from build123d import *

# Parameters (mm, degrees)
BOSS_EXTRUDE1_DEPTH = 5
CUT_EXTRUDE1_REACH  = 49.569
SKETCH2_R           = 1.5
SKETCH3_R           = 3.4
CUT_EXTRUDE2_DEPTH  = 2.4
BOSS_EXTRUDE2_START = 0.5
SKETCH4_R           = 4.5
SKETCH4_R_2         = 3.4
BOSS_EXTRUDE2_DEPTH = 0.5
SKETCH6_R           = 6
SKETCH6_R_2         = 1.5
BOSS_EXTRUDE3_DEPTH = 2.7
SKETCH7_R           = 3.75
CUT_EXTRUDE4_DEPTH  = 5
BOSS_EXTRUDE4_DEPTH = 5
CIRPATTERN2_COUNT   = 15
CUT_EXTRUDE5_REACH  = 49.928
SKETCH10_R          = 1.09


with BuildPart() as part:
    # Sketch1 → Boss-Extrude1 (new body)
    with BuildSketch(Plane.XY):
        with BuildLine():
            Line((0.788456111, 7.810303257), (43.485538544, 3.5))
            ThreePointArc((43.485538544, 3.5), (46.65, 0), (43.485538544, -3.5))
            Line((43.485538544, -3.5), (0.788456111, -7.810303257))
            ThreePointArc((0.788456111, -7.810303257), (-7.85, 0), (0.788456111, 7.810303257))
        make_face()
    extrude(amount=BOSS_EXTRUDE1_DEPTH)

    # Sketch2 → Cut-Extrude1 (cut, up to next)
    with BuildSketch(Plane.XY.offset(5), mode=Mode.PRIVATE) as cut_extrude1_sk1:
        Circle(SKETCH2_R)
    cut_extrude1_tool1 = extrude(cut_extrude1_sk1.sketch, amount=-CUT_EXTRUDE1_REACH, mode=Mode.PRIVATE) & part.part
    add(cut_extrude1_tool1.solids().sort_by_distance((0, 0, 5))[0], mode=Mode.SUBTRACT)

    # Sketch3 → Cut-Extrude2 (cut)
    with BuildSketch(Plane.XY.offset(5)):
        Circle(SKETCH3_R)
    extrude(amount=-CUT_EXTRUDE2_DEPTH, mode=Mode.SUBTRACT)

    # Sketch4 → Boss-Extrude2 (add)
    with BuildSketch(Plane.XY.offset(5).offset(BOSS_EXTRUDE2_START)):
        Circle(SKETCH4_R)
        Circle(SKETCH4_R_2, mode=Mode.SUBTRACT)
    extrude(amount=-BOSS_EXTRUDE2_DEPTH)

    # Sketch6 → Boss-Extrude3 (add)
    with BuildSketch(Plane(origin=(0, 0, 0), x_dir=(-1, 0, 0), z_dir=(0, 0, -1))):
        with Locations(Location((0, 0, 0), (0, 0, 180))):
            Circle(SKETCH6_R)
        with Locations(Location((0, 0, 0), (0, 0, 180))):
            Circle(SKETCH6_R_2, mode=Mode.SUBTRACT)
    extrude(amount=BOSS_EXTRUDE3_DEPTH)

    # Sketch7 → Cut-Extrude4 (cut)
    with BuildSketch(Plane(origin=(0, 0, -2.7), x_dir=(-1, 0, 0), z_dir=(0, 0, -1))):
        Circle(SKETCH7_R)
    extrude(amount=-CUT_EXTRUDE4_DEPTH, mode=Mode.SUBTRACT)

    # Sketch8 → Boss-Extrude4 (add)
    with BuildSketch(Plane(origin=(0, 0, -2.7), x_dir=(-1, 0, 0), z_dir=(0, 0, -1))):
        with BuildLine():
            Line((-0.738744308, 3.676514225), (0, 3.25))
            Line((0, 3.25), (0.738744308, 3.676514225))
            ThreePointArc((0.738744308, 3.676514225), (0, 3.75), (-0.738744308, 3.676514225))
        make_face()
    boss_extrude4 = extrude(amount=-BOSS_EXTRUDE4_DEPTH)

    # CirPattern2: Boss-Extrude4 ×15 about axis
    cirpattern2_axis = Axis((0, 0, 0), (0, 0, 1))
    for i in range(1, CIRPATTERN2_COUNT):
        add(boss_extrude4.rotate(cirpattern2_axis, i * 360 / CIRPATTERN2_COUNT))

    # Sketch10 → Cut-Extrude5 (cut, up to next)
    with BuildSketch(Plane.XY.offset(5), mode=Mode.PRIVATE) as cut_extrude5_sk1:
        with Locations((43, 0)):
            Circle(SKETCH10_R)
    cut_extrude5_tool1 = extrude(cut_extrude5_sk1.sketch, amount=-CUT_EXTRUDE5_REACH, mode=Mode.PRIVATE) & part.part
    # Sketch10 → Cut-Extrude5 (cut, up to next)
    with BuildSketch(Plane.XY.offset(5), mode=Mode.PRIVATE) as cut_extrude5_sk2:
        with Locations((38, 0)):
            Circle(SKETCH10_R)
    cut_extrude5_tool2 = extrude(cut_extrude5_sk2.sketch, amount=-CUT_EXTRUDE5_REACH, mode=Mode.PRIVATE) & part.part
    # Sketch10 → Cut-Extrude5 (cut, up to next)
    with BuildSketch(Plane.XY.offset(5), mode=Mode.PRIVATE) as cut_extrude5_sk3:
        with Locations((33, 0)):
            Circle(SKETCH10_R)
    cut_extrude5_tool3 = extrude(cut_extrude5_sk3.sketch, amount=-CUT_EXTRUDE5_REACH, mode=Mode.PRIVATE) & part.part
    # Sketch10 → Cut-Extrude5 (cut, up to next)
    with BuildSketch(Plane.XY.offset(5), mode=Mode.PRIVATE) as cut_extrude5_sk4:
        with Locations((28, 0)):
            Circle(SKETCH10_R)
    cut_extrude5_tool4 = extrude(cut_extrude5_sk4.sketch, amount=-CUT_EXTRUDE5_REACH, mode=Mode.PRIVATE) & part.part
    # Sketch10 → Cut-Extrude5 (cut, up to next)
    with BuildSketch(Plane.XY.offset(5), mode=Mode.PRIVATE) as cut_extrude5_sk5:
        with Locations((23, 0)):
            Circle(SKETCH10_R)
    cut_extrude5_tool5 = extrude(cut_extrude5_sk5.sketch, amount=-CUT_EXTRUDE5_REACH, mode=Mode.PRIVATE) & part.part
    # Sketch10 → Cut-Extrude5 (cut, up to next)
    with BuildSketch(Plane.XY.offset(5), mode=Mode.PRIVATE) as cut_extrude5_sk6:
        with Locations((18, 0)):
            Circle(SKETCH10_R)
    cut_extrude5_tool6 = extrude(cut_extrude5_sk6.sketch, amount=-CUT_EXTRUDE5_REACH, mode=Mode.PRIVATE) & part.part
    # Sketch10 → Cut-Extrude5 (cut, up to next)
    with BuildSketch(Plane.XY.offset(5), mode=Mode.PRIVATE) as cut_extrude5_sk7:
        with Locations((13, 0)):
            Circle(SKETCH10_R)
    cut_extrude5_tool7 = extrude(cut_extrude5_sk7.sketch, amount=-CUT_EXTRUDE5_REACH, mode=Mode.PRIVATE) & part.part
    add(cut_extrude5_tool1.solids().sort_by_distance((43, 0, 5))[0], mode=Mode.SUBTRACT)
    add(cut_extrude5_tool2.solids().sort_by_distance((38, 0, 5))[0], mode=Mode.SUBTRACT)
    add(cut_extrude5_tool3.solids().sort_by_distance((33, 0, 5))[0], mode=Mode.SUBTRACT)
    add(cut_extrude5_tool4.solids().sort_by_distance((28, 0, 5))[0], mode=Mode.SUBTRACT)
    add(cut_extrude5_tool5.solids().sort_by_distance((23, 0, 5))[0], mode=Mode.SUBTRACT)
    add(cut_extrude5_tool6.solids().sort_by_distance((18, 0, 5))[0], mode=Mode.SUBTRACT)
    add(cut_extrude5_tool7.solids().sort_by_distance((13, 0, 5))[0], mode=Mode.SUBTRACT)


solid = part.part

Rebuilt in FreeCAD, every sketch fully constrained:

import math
import FreeCAD as App
import Part
import Sketcher
from FreeCAD import Vector
Q = App.Units.Quantity

doc = App.newDocument("Part")
body = doc.addObject("PartDesign::Body", "Body")

sketch1 = doc.addObject("Sketcher::SketchObject", "Sketch")
body.addObject(sketch1)
sketch1.AttachmentSupport = (doc.XY_Plane, [""])
sketch1.MapMode = "FlatFace"
sketch1.addGeometry([
    Part.LineSegment(Vector(43.485539, 3.5, 0), Vector(0.788456, 7.810303, 0)),
    Part.ArcOfCircle(Part.Circle(Vector(0, 0, 0), Vector(0, 0, 1), 7.85), math.radians(84.235476), math.radians(275.764524)),
    Part.LineSegment(Vector(0.788456, -7.810303, 0), Vector(43.485539, -3.5, 0)),
    Part.ArcOfCircle(Part.Circle(Vector(43.132211, 0, 0), Vector(0, 0, 1), 3.517789), math.radians(-84.235476), math.radians(84.235476)),
], False)
sketch1.addConstraint([
    Sketcher.Constraint("Tangent", 0, 2, 1, 1),
    Sketcher.Constraint("Tangent", 1, 2, 2, 1),
    Sketcher.Constraint("Tangent", 2, 2, 3, 1),
    Sketcher.Constraint("Tangent", 3, 2, 0, 1),
    Sketcher.Constraint("Coincident", 1, 3, -1, 1),
    Sketcher.Constraint("PointOnObject", 3, 3, -1),
    Sketcher.Constraint("Radius", 1, 7.85),
    Sketcher.Constraint("DistanceY", 2, 2, 3, 2, 7.0),
    Sketcher.Constraint("DistanceX", -1, 1, 3, 3, 43.132211),
])
pad1 = doc.addObject("PartDesign::Pad", "Pad")
body.addObject(pad1)
pad1.Profile = sketch1
pad1.Length = 5

sketch2 = doc.addObject("Sketcher::SketchObject", "Sketch001")
body.addObject(sketch2)
sketch2.AttachmentSupport = (doc.XY_Plane, [""])
sketch2.MapMode = "FlatFace"
sketch2.AttachmentOffset = App.Placement(Vector(0, 0, 5), App.Rotation())
sketch2.addGeometry(Part.Circle(Vector(0, 0, 0), Vector(0, 0, 1), 1.5), False)
sketch2.addConstraint([
    Sketcher.Constraint("Coincident", 0, 3, -1, 1),
    Sketcher.Constraint("Diameter", 0, 3.0),
])
pocket1 = doc.addObject("PartDesign::Pocket", "Pocket")
body.addObject(pocket1)
pocket1.Profile = sketch2
pocket1.Type = "UpToFirst"

sketch3 = doc.addObject("Sketcher::SketchObject", "Sketch002")
body.addObject(sketch3)
sketch3.AttachmentSupport = (doc.XY_Plane, [""])
sketch3.MapMode = "FlatFace"
sketch3.AttachmentOffset = App.Placement(Vector(0, 0, 5), App.Rotation())
sketch3.addGeometry(Part.Circle(Vector(0, 0, 0), Vector(0, 0, 1), 3.4), False)
sketch3.addConstraint([
    Sketcher.Constraint("Coincident", 0, 3, -1, 1),
    Sketcher.Constraint("Diameter", 0, 6.8),
])
pocket2 = doc.addObject("PartDesign::Pocket", "Pocket001")
body.addObject(pocket2)
pocket2.Profile = sketch3
pocket2.Length = 2.4

sketch4 = doc.addObject("Sketcher::SketchObject", "Sketch003")
body.addObject(sketch4)
sketch4.AttachmentSupport = (doc.XY_Plane, [""])
sketch4.MapMode = "FlatFace"
sketch4.AttachmentOffset = App.Placement(Vector(0, 0, 5.5), App.Rotation())
sketch4.addGeometry([
    Part.Circle(Vector(0, 0, 0), Vector(0, 0, 1), 4.5),
    Part.Circle(Vector(0, 0, 0), Vector(0, 0, 1), 3.4),
], False)
sketch4.addConstraint([
    Sketcher.Constraint("Coincident", 0, 3, -1, 1),
    Sketcher.Constraint("Coincident", 1, 3, -1, 1),
    Sketcher.Constraint("Diameter", 0, 9.0),
    Sketcher.Constraint("Diameter", 1, 6.8),
])
pad2 = doc.addObject("PartDesign::Pad", "Pad001")
body.addObject(pad2)
pad2.Profile = sketch4
pad2.Length = 0.5
pad2.Reversed = True

sketch5 = doc.addObject("Sketcher::SketchObject", "Sketch004")
body.addObject(sketch5)
sketch5.AttachmentSupport = (doc.XY_Plane, [""])
sketch5.MapMode = "FlatFace"
sketch5.addGeometry([
    Part.Circle(Vector(0, 0, 0), Vector(0, 0, 1), 6),
    Part.Circle(Vector(0, 0, 0), Vector(0, 0, 1), 1.5),
], False)
sketch5.addConstraint([
    Sketcher.Constraint("Coincident", 0, 3, -1, 1),
    Sketcher.Constraint("Coincident", 1, 3, -1, 1),
    Sketcher.Constraint("Diameter", 0, 12.0),
    Sketcher.Constraint("Diameter", 1, 3.0),
])
pad3 = doc.addObject("PartDesign::Pad", "Pad002")
body.addObject(pad3)
pad3.Profile = sketch5
pad3.Length = 2.7
pad3.Reversed = True

sketch6 = doc.addObject("Sketcher::SketchObject", "Sketch005")
body.addObject(sketch6)
sketch6.AttachmentSupport = (doc.XY_Plane, [""])
sketch6.MapMode = "FlatFace"
sketch6.AttachmentOffset = App.Placement(Vector(0, 0, -2.7), App.Rotation())
sketch6.addGeometry(Part.Circle(Vector(0, 0, 0), Vector(0, 0, 1), 3.75), False)
sketch6.addConstraint([
    Sketcher.Constraint("Coincident", 0, 3, -1, 1),
    Sketcher.Constraint("Diameter", 0, 7.5),
])
pocket3 = doc.addObject("PartDesign::Pocket", "Pocket002")
body.addObject(pocket3)
pocket3.Profile = sketch6
pocket3.Length = 5
pocket3.Reversed = True

sketch7 = doc.addObject("Sketcher::SketchObject", "Sketch006")
body.addObject(sketch7)
sketch7.AttachmentSupport = (doc.XY_Plane, [""])
sketch7.MapMode = "FlatFace"
sketch7.AttachmentOffset = App.Placement(Vector(0, 0, -2.7), App.Rotation())
sketch7.addGeometry([
    Part.LineSegment(Vector(0.738744, 3.676514, 0), Vector(0, 3.25, 0)),
    Part.LineSegment(Vector(0, 3.25, 0), Vector(-0.738744, 3.676514, 0)),
    Part.ArcOfCircle(Part.Circle(Vector(0, 0, 0), Vector(0, 0, 1), 3.75), math.radians(78.638507), math.radians(101.361493)),
], False)
sketch7.addConstraint([
    Sketcher.Constraint("Coincident", 0, 2, 1, 1),
    Sketcher.Constraint("Coincident", 1, 2, 2, 2),
    Sketcher.Constraint("Coincident", 2, 1, 0, 1),
    Sketcher.Constraint("Coincident", 2, 3, -1, 1),
    Sketcher.Constraint("PointOnObject", 0, 2, -2),
    Sketcher.Constraint("Horizontal", 1, 2, 2, 1),
    Sketcher.Constraint("Angle", 0, Q("-150 deg")),
    Sketcher.Constraint("Radius", 2, 3.75),
    Sketcher.Constraint("DistanceY", -1, 1, 0, 2, 3.25),
])
pad4 = doc.addObject("PartDesign::Pad", "Pad003")
body.addObject(pad4)
pad4.Profile = sketch7
pad4.Length = 5
doc.recompute()

polarpattern = doc.addObject("PartDesign::PolarPattern", "PolarPattern")
body.addObject(polarpattern)
polarpattern.Originals = [pad4]
polarpattern.Axis = (doc.Z_Axis, [""])
polarpattern.Angle = 360
polarpattern.Occurrences = 15
body.Tip = polarpattern

sketch8 = doc.addObject("Sketcher::SketchObject", "Sketch007")
body.addObject(sketch8)
sketch8.AttachmentSupport = (doc.XY_Plane, [""])
sketch8.MapMode = "FlatFace"
sketch8.AttachmentOffset = App.Placement(Vector(0, 0, 5), App.Rotation())
sketch8.addGeometry(Part.Circle(Vector(43, 0, 0), Vector(0, 0, 1), 1.09), False)
sketch8.addConstraint([
    Sketcher.Constraint("PointOnObject", 0, 3, -1),
    Sketcher.Constraint("Diameter", 0, 2.18),
    Sketcher.Constraint("DistanceX", -1, 1, 0, 3, 43.0),
])
pocket4 = doc.addObject("PartDesign::Pocket", "Pocket003")
body.addObject(pocket4)
pocket4.Profile = sketch8
pocket4.Type = "UpToFirst"

sketch9 = doc.addObject("Sketcher::SketchObject", "Sketch008")
body.addObject(sketch9)
sketch9.AttachmentSupport = (doc.XY_Plane, [""])
sketch9.MapMode = "FlatFace"
sketch9.AttachmentOffset = App.Placement(Vector(0, 0, 5), App.Rotation())
sketch9.addGeometry(Part.Circle(Vector(38, 0, 0), Vector(0, 0, 1), 1.09), False)
sketch9.addConstraint([
    Sketcher.Constraint("PointOnObject", 0, 3, -1),
    Sketcher.Constraint("Diameter", 0, 2.18),
    Sketcher.Constraint("DistanceX", -1, 1, 0, 3, 38.0),
])
pocket5 = doc.addObject("PartDesign::Pocket", "Pocket004")
body.addObject(pocket5)
pocket5.Profile = sketch9
pocket5.Type = "UpToFirst"

sketch10 = doc.addObject("Sketcher::SketchObject", "Sketch009")
body.addObject(sketch10)
sketch10.AttachmentSupport = (doc.XY_Plane, [""])
sketch10.MapMode = "FlatFace"
sketch10.AttachmentOffset = App.Placement(Vector(0, 0, 5), App.Rotation())
sketch10.addGeometry(Part.Circle(Vector(33, 0, 0), Vector(0, 0, 1), 1.09), False)
sketch10.addConstraint([
    Sketcher.Constraint("PointOnObject", 0, 3, -1),
    Sketcher.Constraint("Diameter", 0, 2.18),
    Sketcher.Constraint("DistanceX", -1, 1, 0, 3, 33.0),
])
pocket6 = doc.addObject("PartDesign::Pocket", "Pocket005")
body.addObject(pocket6)
pocket6.Profile = sketch10
pocket6.Type = "UpToFirst"

sketch11 = doc.addObject("Sketcher::SketchObject", "Sketch010")
body.addObject(sketch11)
sketch11.AttachmentSupport = (doc.XY_Plane, [""])
sketch11.MapMode = "FlatFace"
sketch11.AttachmentOffset = App.Placement(Vector(0, 0, 5), App.Rotation())
sketch11.addGeometry(Part.Circle(Vector(28, 0, 0), Vector(0, 0, 1), 1.09), False)
sketch11.addConstraint([
    Sketcher.Constraint("PointOnObject", 0, 3, -1),
    Sketcher.Constraint("Diameter", 0, 2.18),
    Sketcher.Constraint("DistanceX", -1, 1, 0, 3, 28.0),
])
pocket7 = doc.addObject("PartDesign::Pocket", "Pocket006")
body.addObject(pocket7)
pocket7.Profile = sketch11
pocket7.Type = "UpToFirst"

sketch12 = doc.addObject("Sketcher::SketchObject", "Sketch011")
body.addObject(sketch12)
sketch12.AttachmentSupport = (doc.XY_Plane, [""])
sketch12.MapMode = "FlatFace"
sketch12.AttachmentOffset = App.Placement(Vector(0, 0, 5), App.Rotation())
sketch12.addGeometry(Part.Circle(Vector(23, 0, 0), Vector(0, 0, 1), 1.09), False)
sketch12.addConstraint([
    Sketcher.Constraint("PointOnObject", 0, 3, -1),
    Sketcher.Constraint("Diameter", 0, 2.18),
    Sketcher.Constraint("DistanceX", -1, 1, 0, 3, 23.0),
])
pocket8 = doc.addObject("PartDesign::Pocket", "Pocket007")
body.addObject(pocket8)
pocket8.Profile = sketch12
pocket8.Type = "UpToFirst"

sketch13 = doc.addObject("Sketcher::SketchObject", "Sketch012")
body.addObject(sketch13)
sketch13.AttachmentSupport = (doc.XY_Plane, [""])
sketch13.MapMode = "FlatFace"
sketch13.AttachmentOffset = App.Placement(Vector(0, 0, 5), App.Rotation())
sketch13.addGeometry(Part.Circle(Vector(18, 0, 0), Vector(0, 0, 1), 1.09), False)
sketch13.addConstraint([
    Sketcher.Constraint("PointOnObject", 0, 3, -1),
    Sketcher.Constraint("Diameter", 0, 2.18),
    Sketcher.Constraint("DistanceX", -1, 1, 0, 3, 18.0),
])
pocket9 = doc.addObject("PartDesign::Pocket", "Pocket008")
body.addObject(pocket9)
pocket9.Profile = sketch13
pocket9.Type = "UpToFirst"

sketch14 = doc.addObject("Sketcher::SketchObject", "Sketch013")
body.addObject(sketch14)
sketch14.AttachmentSupport = (doc.XY_Plane, [""])
sketch14.MapMode = "FlatFace"
sketch14.AttachmentOffset = App.Placement(Vector(0, 0, 5), App.Rotation())
sketch14.addGeometry(Part.Circle(Vector(13, 0, 0), Vector(0, 0, 1), 1.09), False)
sketch14.addConstraint([
    Sketcher.Constraint("PointOnObject", 0, 3, -1),
    Sketcher.Constraint("Diameter", 0, 2.18),
    Sketcher.Constraint("DistanceX", -1, 1, 0, 3, 13.0),
])
pocket10 = doc.addObject("PartDesign::Pocket", "Pocket009")
body.addObject(pocket10)
pocket10.Profile = sketch14
pocket10.Type = "UpToFirst"

doc.recompute()
